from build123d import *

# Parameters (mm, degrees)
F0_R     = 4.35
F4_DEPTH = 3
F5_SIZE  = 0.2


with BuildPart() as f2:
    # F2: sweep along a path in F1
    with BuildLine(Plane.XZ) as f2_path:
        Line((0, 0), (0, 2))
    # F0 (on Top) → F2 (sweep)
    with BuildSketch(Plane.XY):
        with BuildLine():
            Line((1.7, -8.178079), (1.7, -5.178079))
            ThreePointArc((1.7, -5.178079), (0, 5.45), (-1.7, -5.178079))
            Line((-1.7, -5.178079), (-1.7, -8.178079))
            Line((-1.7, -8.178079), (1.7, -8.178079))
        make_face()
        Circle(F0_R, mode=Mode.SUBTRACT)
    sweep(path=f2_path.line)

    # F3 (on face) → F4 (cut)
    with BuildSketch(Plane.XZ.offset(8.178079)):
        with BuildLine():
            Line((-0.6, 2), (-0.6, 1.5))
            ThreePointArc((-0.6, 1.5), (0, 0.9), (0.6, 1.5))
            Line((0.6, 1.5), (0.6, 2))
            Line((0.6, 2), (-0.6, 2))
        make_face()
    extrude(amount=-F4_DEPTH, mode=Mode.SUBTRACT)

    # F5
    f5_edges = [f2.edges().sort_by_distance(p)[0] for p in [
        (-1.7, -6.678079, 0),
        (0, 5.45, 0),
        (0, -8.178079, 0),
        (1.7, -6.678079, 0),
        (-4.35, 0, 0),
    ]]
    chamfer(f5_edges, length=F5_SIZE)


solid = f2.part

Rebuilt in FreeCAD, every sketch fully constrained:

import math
import FreeCAD as App
import Part
import Sketcher

V = App.Vector


def edges_at(feature, points):
    """Names of the edges that pass closest to the given points."""
    edges = feature.Shape.Edges
    near = lambda p: min(range(len(edges)), key=lambda i: edges[i].distToShape(Part.Vertex(*p))[0])
    return sorted({f"Edge{near(p) + 1}" for p in points})

doc = App.newDocument("Part")
params = doc.addObject("Spreadsheet::Sheet", "Params")
for row, (alias, value) in enumerate([
    ("sketch1_diameter", "8.7 mm"),
    ("sketch1_height", "3 mm"),
    ("sketch1_radius", "5.45 mm"),
    ("sketch1_width", "3.4 mm"),
    ("sketch2_height", "2 mm"),
    ("sketch3_radius", "0.6 mm"),
    ("sketch3_height", "0.5 mm"),
    ("pocket1_length", "3 mm"),
    ("chamfer_size", "0.2 mm"),
], start=1):
    params.set(f"A{row}", alias)
    params.set(f"B{row}", "=" + value)
    params.setAlias(f"B{row}", alias)

body = doc.addObject("PartDesign::Body", "Body")

# Sketch on XY plane
sketch1 = body.newObject("Sketcher::SketchObject", "Sketch")
sketch1.AttachmentSupport = (doc.getObject("XY_Plane"), [""])
sketch1.MapMode = "FlatFace"
sketch1.addGeometry(Part.LineSegment(V(1.7, -8.2, 0), V(1.7, -5.2, 0)), False)
sketch1.addGeometry(Part.ArcOfCircle(Part.Circle(V(0, 0, 0), V(0, 0, 1), 5.5), math.radians(-72), math.radians(252)), False)
sketch1.addGeometry(Part.LineSegment(V(-1.7, -5.2, 0), V(-1.7, -8.2, 0)), False)
sketch1.addGeometry(Part.LineSegment(V(-1.7, -8.2, 0), V(1.7, -8.2, 0)), False)
sketch1.addGeometry(Part.Circle(V(0, 0, 0), V(0, 0, 1), 4.3), False)
sketch1.addConstraint(Sketcher.Constraint("Coincident", 0, 2, 1, 1))
sketch1.addConstraint(Sketcher.Constraint("Coincident", 1, 2, 2, 1))
sketch1.addConstraint(Sketcher.Constraint("Coincident", 2, 2, 3, 1))
sketch1.addConstraint(Sketcher.Constraint("Coincident", 3, 2, 0, 1))
sketch1.addConstraint(Sketcher.Constraint("Vertical", 0))
sketch1.addConstraint(Sketcher.Constraint("Vertical", 2))
sketch1.addConstraint(Sketcher.Constraint("Horizontal", 3))
sketch1.addConstraint(Sketcher.Constraint("Coincident", 1, 3, -1, 1))
sketch1.addConstraint(Sketcher.Constraint("Coincident", 4, 3, -1, 1))
sketch1.addConstraint(Sketcher.Constraint("Horizontal", 0, 2, 1, 2))
sketch1.addConstraint(Sketcher.Constraint("Diameter", 4, 8.7))
sketch1.addConstraint(Sketcher.Constraint("DistanceY", 0, 1, 0, 2, 3.0))
sketch1.addConstraint(Sketcher.Constraint("Radius", 1, 5.45))
sketch1.addConstraint(Sketcher.Constraint("DistanceX", 3, 1, 3, 2, 3.4))
sketch1.setExpression("Constraints[10]", "Params.sketch1_diameter")
sketch1.setExpression("Constraints[11]", "Params.sketch1_height")
sketch1.setExpression("Constraints[12]", "Params.sketch1_radius")
sketch1.setExpression("Constraints[13]", "Params.sketch1_width")

# Sketch on XZ plane
sketch2 = body.newObject("Sketcher::SketchObject", "Sketch001")
sketch2.AttachmentSupport = (doc.getObject("XZ_Plane"), [""])
sketch2.MapMode = "FlatFace"
sketch2.addGeometry(Part.LineSegment(V(0, 0, 0), V(0, 2, 0)), False)
sketch2.addConstraint(Sketcher.Constraint("Vertical", 0))
sketch2.addConstraint(Sketcher.Constraint("Coincident", 0, 1, -1, 1))
sketch2.addConstraint(Sketcher.Constraint("DistanceY", 0, 1, 0, 2, 2.0))
sketch2.setExpression("Constraints[2]", "Params.sketch2_height")
doc.recompute()

additivepipe = body.newObject("PartDesign::AdditivePipe", "AdditivePipe")
additivepipe.Profile = sketch1
additivepipe.Spine = (sketch2, ["Edge1"])

# Sketch on XZ plane
sketch3 = body.newObject("Sketcher::SketchObject", "Sketch002")
sketch3.AttachmentSupport = (doc.getObject("XZ_Plane"), [""])
sketch3.MapMode = "FlatFace"
sketch3.AttachmentOffset = App.Placement(V(0, 0, 8.178079), App.Rotation())
sketch3.addGeometry(Part.LineSegment(V(-0.6, 2, 0), V(-0.6, 1.5, 0)), False)
sketch3.addGeometry(Part.ArcOfCircle(Part.Circle(V(0, 1.5, 0), V(0, 0, 1), 0.6), math.radians(180), math.radians(360)), False)
sketch3.addGeometry(Part.LineSegment(V(0.6, 1.5, 0), V(0.6, 2, 0)), False)
sketch3.addGeometry(Part.LineSegment(V(0.6, 2, 0), V(-0.6, 2, 0)), False)
sketch3.addConstraint(Sketcher.Constraint("Tangent", 0, 2, 1, 1))
sketch3.addConstraint(Sketcher.Constraint("Tangent", 1, 2, 2, 1))
sketch3.addConstraint(Sketcher.Constraint("Coincident", 2, 2, 3, 1))
sketch3.addConstraint(Sketcher.Constraint("Coincident", 3, 2, 0, 1))
sketch3.addConstraint(Sketcher.Constraint("Vertical", 0))
sketch3.addConstraint(Sketcher.Constraint("Vertical", 2))
sketch3.addConstraint(Sketcher.Constraint("Horizontal", 3))
sketch3.addConstraint(Sketcher.Constraint("PointOnObject", 1, 3, -2))
sketch3.addConstraint(Sketcher.Constraint("Radius", 1, 0.6))
sketch3.addConstraint(Sketcher.Constraint("DistanceY", 0, 2, 0, 1, 0.5))
sketch3.addConstraint(Sketcher.Constraint("DistanceY", -1, 1, 2, 2, 2.0))
sketch3.setExpression("Constraints[8]", "Params.sketch3_radius")
sketch3.setExpression("Constraints[9]", "Params.sketch3_height")
pocket1 = body.newObject("PartDesign::Pocket", "Pocket")
pocket1.Profile = sketch3
pocket1.setExpression("Length", "Params.pocket1_length")
doc.recompute()

chamfer = body.newObject("PartDesign::Chamfer", "Chamfer")
chamfer.Base = (pocket1, edges_at(pocket1, [
    (-1.7, -6.678, 0),
    (0, 5.45, 0),
    (0, -8.178, 0),
    (1.7, -6.678, 0),
    (-4.35, 0, 0),
]))
chamfer.setExpression("Size", "Params.chamfer_size")

doc.recompute()
